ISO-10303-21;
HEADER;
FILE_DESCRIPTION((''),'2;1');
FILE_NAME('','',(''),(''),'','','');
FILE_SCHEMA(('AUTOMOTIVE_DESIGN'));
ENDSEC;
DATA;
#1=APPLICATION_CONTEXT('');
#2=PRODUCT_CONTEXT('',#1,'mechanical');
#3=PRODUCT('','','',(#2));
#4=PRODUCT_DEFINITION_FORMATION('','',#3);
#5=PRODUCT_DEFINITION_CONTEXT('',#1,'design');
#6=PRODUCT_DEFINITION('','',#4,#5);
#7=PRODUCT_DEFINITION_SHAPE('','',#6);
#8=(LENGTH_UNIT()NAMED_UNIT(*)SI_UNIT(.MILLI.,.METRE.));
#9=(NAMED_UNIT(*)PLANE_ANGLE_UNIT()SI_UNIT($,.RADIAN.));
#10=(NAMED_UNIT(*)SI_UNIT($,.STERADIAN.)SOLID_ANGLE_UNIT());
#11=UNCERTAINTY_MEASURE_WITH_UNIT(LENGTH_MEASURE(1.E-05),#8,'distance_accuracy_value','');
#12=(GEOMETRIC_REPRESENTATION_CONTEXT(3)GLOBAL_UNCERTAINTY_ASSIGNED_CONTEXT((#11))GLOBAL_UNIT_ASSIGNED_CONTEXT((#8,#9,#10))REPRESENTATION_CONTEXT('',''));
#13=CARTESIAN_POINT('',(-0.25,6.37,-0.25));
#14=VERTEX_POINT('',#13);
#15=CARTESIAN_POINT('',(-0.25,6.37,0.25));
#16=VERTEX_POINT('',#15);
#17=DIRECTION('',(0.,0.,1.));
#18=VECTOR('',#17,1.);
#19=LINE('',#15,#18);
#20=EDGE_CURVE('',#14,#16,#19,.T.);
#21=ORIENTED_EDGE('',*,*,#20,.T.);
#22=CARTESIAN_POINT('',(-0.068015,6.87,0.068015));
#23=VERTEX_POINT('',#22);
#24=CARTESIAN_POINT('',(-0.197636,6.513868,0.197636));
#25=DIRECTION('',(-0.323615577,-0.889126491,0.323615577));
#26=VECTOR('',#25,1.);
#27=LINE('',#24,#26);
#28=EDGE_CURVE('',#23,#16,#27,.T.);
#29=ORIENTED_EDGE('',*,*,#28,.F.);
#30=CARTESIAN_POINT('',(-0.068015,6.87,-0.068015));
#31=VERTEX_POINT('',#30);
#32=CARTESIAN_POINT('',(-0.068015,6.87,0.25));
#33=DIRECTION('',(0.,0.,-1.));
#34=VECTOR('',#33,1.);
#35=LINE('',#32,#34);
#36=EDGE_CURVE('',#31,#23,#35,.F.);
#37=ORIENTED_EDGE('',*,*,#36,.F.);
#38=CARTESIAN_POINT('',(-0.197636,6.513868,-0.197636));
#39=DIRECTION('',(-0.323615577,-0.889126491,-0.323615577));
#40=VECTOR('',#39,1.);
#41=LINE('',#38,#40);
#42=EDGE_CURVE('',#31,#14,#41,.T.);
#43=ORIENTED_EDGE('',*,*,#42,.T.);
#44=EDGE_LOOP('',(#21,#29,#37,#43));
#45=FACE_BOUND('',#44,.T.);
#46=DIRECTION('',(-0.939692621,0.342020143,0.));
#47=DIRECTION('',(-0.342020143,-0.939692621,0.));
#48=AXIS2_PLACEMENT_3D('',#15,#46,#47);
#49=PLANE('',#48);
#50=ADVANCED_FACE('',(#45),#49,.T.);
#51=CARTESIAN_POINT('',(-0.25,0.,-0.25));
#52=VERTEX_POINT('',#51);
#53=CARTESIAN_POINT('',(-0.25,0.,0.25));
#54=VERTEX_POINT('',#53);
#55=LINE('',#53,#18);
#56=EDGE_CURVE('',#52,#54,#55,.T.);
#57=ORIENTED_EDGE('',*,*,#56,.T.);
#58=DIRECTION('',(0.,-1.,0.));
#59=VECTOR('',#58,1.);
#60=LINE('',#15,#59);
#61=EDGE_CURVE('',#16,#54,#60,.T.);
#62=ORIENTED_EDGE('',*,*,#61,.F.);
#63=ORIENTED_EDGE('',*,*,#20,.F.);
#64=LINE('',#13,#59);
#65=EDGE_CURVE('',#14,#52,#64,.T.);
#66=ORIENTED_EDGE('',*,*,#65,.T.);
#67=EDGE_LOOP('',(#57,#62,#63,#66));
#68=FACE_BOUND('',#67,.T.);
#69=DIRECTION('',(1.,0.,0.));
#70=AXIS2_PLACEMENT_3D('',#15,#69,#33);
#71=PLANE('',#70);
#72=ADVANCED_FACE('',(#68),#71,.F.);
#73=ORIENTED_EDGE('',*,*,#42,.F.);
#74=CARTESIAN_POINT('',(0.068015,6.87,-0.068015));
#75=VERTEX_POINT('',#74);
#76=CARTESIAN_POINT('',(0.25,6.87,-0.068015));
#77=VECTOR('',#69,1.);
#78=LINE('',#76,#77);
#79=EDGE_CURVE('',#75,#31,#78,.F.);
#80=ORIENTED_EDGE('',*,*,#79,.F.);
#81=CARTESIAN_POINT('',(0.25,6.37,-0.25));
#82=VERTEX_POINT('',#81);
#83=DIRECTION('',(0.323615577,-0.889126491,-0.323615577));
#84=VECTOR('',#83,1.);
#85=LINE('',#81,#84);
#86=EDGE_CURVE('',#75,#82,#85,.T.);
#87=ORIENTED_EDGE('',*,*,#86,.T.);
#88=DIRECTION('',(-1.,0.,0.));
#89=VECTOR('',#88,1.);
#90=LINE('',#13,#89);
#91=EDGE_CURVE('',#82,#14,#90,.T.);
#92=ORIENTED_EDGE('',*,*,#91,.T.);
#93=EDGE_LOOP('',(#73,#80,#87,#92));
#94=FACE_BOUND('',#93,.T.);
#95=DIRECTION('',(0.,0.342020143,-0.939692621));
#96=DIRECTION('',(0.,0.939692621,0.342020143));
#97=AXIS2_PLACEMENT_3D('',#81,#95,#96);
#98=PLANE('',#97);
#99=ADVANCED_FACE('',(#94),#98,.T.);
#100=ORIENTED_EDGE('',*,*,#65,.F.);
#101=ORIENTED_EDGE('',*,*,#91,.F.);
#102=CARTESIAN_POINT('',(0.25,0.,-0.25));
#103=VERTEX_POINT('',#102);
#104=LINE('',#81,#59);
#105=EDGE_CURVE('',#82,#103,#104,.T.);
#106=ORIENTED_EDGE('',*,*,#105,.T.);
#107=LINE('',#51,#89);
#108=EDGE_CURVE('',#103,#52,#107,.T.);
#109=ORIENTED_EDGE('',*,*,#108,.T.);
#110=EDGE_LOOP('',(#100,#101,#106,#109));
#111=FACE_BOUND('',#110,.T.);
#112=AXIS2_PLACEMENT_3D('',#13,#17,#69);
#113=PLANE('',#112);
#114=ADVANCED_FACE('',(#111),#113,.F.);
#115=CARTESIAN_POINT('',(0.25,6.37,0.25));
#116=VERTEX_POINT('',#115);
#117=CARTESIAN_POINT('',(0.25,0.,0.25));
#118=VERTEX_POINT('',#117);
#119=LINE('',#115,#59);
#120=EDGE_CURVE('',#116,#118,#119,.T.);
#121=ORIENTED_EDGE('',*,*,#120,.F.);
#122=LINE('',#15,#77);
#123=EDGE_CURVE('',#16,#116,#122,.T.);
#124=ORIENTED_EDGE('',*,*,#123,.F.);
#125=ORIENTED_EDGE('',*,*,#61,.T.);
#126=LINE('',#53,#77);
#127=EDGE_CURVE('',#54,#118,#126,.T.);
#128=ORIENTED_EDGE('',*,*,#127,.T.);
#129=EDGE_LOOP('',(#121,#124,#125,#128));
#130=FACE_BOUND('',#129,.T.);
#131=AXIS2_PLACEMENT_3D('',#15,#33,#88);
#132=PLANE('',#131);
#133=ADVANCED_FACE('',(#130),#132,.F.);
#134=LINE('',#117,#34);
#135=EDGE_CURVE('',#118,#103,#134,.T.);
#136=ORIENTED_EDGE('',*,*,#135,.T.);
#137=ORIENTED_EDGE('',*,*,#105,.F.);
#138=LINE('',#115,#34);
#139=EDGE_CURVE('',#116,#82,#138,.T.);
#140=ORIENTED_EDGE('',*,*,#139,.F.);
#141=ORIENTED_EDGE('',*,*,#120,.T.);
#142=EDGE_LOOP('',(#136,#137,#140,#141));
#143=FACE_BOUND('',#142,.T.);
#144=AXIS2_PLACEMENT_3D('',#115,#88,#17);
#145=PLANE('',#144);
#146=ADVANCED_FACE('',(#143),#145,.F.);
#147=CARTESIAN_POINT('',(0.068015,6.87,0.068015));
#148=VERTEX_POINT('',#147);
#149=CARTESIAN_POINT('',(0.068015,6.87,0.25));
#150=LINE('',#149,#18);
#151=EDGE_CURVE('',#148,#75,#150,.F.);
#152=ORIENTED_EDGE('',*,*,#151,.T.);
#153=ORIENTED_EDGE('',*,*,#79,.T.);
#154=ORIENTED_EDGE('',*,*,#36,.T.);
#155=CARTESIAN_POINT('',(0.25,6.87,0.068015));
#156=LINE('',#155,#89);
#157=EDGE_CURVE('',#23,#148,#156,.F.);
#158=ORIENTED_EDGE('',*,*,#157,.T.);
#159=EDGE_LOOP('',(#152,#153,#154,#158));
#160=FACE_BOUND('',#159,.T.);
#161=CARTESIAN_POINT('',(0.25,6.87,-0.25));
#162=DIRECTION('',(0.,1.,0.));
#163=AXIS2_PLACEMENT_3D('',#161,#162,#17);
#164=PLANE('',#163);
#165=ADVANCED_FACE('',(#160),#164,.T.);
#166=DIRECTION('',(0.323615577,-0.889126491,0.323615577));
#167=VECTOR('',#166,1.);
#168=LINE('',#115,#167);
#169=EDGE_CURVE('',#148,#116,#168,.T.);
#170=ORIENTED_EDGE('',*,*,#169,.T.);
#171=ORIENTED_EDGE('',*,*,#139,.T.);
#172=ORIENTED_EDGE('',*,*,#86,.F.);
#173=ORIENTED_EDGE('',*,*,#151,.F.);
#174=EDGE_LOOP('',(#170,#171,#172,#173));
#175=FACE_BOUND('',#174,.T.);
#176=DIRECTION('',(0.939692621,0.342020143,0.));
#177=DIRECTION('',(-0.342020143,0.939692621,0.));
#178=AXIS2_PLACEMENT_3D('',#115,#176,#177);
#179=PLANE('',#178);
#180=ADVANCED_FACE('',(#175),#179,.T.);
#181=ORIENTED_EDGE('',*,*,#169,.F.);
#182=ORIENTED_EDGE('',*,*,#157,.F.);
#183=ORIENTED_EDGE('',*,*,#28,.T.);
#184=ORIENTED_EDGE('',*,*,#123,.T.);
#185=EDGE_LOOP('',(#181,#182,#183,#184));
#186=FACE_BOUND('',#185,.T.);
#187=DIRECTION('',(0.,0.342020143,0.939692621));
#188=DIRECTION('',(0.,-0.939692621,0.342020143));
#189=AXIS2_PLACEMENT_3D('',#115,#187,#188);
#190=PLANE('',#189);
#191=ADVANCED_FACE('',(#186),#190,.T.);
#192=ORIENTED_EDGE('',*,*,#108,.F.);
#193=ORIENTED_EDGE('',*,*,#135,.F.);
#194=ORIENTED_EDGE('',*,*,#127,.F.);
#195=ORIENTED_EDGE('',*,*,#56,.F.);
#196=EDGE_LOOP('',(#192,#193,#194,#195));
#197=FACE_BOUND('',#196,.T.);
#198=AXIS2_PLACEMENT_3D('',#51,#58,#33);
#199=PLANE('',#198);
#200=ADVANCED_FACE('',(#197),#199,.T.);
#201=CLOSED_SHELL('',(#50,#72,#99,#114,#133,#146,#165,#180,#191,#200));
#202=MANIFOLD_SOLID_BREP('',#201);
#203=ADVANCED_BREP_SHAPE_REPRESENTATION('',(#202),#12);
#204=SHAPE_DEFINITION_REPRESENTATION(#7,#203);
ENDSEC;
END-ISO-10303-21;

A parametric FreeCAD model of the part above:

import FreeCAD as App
import Part
import Sketcher

V = App.Vector

doc = App.newDocument("Part")
body = doc.addObject("PartDesign::Body", "Body")

# Sketch on XZ plane
sketch1 = body.newObject("Sketcher::SketchObject", "Sketch")
sketch1.AttachmentSupport = (doc.getObject("XZ_Plane"), [""])
sketch1.MapMode = "FlatFace"
sketch1.addGeometry([
    Part.LineSegment(V(-0.2, -0.2, 0), V(-0.2, 0.2, 0)),
    Part.LineSegment(V(-0.2, 0.2, 0), V(0.2, 0.2, 0)),
    Part.LineSegment(V(0.2, 0.2, 0), V(0.2, -0.2, 0)),
    Part.LineSegment(V(0.2, -0.2, 0), V(-0.2, -0.2, 0)),
], False)
sketch1.addConstraint([
    Sketcher.Constraint("Coincident", 0, 2, 1, 1),
    Sketcher.Constraint("Coincident", 1, 2, 2, 1),
    Sketcher.Constraint("Coincident", 2, 2, 3, 1),
    Sketcher.Constraint("Coincident", 3, 2, 0, 1),
    Sketcher.Constraint("Vertical", 0),
    Sketcher.Constraint("Horizontal", 1),
    Sketcher.Constraint("Vertical", 2),
    Sketcher.Constraint("Horizontal", 3),
    Sketcher.Constraint("Symmetric", 0, 2, 2, 2, -1, 1),
    Sketcher.Constraint("Equal", 3, 0),
    Sketcher.Constraint("DistanceX", 1, 1, 1, 2, 0.5),
])

# Sketch on XY plane
sketch2 = body.newObject("Sketcher::SketchObject", "Sketch001")
sketch2.AttachmentSupport = (doc.getObject("XY_Plane"), [""])
sketch2.MapMode = "FlatFace"
sketch2.addGeometry(Part.LineSegment(V(0, 0, 0), V(0, 6, 0)), False)
sketch2.addConstraint([
    Sketcher.Constraint("Vertical", 0),
    Sketcher.Constraint("Coincident", 0, 1, -1, 1),
    Sketcher.Constraint("DistanceY", 0, 1, 0, 2, 6.37),
])
doc.recompute()

additivepipe = body.newObject("PartDesign::AdditivePipe", "AdditivePipe")
additivepipe.Profile = sketch1
additivepipe.Spine = (sketch2, ["Edge1"])

# Sketch on XZ plane
sketch3 = body.newObject("Sketcher::SketchObject", "Sketch002")
sketch3.AttachmentSupport = (doc.getObject("XZ_Plane"), [""])
sketch3.MapMode = "FlatFace"
sketch3.AttachmentOffset = App.Placement(V(0, 0, -6.37), App.Rotation())
sketch3.addGeometry([
    Part.LineSegment(V(-0.2, -0.2, 0), V(-0.2, 0.2, 0)),
    Part.LineSegment(V(-0.2, 0.2, 0), V(0.2, 0.2, 0)),
    Part.LineSegment(V(0.2, 0.2, 0), V(0.2, -0.2, 0)),
    Part.LineSegment(V(0.2, -0.2, 0), V(-0.2, -0.2, 0)),
], False)
sketch3.addConstraint([
    Sketcher.Constraint("Coincident", 0, 2, 1, 1),
    Sketcher.Constraint("Coincident", 1, 2, 2, 1),
    Sketcher.Constraint("Coincident", 2, 2, 3, 1),
    Sketcher.Constraint("Coincident", 3, 2, 0, 1),
    Sketcher.Constraint("Vertical", 0),
    Sketcher.Constraint("Horizontal", 1),
    Sketcher.Constraint("Vertical", 2),
    Sketcher.Constraint("Horizontal", 3),
    Sketcher.Constraint("Symmetric", 0, 2, 2, 2, -1, 1),
    Sketcher.Constraint("Equal", 3, 0),
    Sketcher.Constraint("DistanceX", 1, 1, 1, 2, 0.5),
])
pad1 = body.newObject("PartDesign::Pad", "Pad")
pad1.Profile = sketch3
pad1.Length = 0.5
pad1.Reversed = True
pad1.TaperAngle = -20

doc.recompute()
